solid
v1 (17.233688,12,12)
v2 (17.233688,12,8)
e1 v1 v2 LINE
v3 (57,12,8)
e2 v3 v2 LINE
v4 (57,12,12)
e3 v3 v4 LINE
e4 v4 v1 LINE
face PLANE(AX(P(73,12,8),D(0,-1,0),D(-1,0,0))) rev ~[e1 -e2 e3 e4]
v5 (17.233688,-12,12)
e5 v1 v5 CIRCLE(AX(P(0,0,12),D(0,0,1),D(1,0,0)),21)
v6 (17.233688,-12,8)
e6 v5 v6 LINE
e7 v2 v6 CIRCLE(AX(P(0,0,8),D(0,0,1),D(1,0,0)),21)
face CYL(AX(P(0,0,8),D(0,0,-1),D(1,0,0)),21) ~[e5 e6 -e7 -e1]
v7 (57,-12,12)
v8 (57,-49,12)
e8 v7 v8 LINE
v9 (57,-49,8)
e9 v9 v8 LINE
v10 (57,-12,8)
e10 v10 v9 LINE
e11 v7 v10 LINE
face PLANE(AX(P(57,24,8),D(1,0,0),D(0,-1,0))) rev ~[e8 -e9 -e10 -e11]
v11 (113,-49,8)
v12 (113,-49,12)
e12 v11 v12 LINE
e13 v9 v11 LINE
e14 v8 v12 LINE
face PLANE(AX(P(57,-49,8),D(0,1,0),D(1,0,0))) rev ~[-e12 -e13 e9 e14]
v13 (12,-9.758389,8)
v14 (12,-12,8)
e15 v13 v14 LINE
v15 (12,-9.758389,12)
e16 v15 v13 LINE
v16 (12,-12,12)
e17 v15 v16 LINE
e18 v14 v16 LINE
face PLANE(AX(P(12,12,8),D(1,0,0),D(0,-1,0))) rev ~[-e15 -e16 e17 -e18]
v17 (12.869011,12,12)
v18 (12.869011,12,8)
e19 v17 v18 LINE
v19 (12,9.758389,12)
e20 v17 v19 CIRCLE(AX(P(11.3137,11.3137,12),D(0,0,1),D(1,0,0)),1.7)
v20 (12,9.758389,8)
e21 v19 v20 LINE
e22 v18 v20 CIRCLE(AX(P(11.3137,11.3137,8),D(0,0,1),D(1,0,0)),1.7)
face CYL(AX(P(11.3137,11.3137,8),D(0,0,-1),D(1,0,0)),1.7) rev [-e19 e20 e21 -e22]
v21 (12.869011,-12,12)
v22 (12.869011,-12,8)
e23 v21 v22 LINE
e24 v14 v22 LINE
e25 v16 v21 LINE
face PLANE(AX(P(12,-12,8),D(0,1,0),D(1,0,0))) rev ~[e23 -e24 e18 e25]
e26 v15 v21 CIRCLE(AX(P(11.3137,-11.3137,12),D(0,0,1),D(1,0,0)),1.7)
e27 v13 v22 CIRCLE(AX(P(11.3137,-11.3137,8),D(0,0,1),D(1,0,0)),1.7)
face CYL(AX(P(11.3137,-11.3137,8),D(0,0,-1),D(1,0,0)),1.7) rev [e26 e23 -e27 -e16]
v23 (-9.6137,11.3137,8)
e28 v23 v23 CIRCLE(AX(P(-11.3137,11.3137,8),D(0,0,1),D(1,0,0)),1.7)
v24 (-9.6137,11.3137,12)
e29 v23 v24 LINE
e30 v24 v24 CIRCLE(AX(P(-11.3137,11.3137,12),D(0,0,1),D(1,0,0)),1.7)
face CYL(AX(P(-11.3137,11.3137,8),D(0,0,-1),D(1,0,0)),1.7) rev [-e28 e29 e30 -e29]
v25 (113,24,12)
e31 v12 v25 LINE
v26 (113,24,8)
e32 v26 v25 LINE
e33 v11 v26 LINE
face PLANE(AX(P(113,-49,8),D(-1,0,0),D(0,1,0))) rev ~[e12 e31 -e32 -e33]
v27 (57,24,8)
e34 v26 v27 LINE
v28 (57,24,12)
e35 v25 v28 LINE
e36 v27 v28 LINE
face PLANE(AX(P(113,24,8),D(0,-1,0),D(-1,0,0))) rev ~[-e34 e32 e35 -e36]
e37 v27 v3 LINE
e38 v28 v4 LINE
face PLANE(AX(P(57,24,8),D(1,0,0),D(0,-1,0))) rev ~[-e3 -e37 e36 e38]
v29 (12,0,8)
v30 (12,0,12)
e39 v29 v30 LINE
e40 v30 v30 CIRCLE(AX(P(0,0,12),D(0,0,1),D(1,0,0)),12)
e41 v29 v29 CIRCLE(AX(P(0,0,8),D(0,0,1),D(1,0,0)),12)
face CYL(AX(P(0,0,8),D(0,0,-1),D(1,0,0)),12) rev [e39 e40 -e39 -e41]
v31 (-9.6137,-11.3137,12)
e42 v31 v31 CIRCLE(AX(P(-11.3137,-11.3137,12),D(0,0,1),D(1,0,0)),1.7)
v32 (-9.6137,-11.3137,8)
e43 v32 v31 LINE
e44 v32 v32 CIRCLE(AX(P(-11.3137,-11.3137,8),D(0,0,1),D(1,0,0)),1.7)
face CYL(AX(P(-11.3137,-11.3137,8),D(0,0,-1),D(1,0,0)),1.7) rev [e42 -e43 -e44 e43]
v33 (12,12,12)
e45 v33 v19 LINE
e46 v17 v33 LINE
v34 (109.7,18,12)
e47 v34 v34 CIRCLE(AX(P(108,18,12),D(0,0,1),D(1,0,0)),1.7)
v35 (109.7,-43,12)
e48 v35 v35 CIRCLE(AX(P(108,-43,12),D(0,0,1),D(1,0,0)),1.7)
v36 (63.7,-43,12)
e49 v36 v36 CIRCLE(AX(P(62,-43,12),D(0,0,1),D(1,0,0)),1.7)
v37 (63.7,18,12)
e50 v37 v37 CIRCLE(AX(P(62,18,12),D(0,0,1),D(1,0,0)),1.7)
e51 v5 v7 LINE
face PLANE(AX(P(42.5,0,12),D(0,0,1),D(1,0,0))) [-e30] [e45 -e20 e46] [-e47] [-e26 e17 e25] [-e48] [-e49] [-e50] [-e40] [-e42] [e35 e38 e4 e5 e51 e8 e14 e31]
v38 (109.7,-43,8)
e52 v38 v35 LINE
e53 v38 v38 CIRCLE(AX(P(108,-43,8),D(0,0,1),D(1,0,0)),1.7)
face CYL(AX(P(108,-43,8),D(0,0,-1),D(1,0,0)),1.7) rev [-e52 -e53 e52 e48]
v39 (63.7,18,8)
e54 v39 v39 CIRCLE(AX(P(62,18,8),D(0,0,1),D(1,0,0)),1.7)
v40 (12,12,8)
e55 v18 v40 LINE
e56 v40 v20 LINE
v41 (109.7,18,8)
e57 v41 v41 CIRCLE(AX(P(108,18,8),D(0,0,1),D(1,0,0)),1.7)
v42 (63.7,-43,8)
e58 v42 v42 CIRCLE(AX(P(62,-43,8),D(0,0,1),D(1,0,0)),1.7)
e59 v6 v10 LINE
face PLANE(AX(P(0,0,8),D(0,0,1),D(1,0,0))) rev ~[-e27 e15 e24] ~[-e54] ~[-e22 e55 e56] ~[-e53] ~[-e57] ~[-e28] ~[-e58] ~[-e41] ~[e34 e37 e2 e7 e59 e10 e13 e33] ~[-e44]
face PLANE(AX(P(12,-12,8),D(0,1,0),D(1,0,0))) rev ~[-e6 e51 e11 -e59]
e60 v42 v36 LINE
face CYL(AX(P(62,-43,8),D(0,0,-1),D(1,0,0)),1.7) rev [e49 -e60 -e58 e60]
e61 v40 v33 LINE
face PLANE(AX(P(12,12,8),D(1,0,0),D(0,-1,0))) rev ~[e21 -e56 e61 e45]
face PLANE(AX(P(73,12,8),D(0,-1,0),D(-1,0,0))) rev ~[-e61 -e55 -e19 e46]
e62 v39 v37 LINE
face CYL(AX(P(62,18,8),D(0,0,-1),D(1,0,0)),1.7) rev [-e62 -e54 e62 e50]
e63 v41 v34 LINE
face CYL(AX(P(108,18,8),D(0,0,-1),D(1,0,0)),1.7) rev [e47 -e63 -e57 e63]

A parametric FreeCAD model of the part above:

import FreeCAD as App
import Part
import Sketcher
Q = App.Units.Quantity

doc = App.newDocument("Part")
params = doc.addObject("Spreadsheet::Sheet", "Params")
for row, (alias, value) in enumerate([
    ("sketch1_diameter", "42 mm"),
    ("sketch1_diameter2", "24 mm"),
    ("sketch1_diameter3", "3.4 mm"),
    ("pad1_length", "4 mm"),
    ("sketch2_width", "61 mm"),
    ("sketch2_height", "24 mm"),
    ("pad2_length", "4 mm"),
    ("sketch3_diameter", "3.4 mm"),
    ("sketch3_width", "56 mm"),
    ("sketch3_height", "73 mm"),
    ("pad3_length", "4 mm"),
], start=1):
    params.set(f"A{row}", alias)
    params.set(f"B{row}", "=" + value)
    params.setAlias(f"B{row}", alias)

body = doc.addObject("PartDesign::Body", "Body")

sketch1 = body.newObject("Sketcher::SketchObject", "Sketch")
sketch1.AttachmentSupport = (doc.getObject("XY_Plane"), [""])
sketch1.MapMode = "FlatFace"
sketch1.AttachmentOffset = App.Placement(App.Vector(0, 0, 8), App.Rotation())
sketch1.addGeometry(Part.Circle(App.Vector(0, 0, 0), App.Vector(0, 0, 1), 21), False)
sketch1.addGeometry(Part.Circle(App.Vector(-11.3, -11.3, 0), App.Vector(0, 0, 1), 1.7), False)
sketch1.addGeometry(Part.Circle(App.Vector(11.3, -11.3, 0), App.Vector(0, 0, 1), 1.7), False)
sketch1.addGeometry(Part.Circle(App.Vector(-11.3, 11.3, 0), App.Vector(0, 0, 1), 1.7), False)
sketch1.addGeometry(Part.Circle(App.Vector(0, 0, 0), App.Vector(0, 0, 1), 12), False)
sketch1.addGeometry(Part.Circle(App.Vector(11.3, 11.3, 0), App.Vector(0, 0, 1), 1.7), False)
sketch1.addConstraint(Sketcher.Constraint("Coincident", 0, 3, -1, 1))
sketch1.addConstraint(Sketcher.Constraint("Coincident", 4, 3, -1, 1))
sketch1.addConstraint(Sketcher.Constraint("Equal", 1, 2))
sketch1.addConstraint(Sketcher.Constraint("Equal", 2, 3))
sketch1.addConstraint(Sketcher.Constraint("Equal", 3, 5))
sketch1.addConstraint(Sketcher.Constraint("Symmetric", 2, 3, 3, 3, -1, 1))
sketch1.addConstraint(Sketcher.Constraint("Symmetric", 1, 3, 5, 3, -1, 1))
sketch1.addConstraint(Sketcher.Constraint("Symmetric", 1, 3, 2, 3, -2))
sketch1.addConstraint(Sketcher.Constraint("Diameter", 0, Q("42 mm")))
sketch1.addConstraint(Sketcher.Constraint("Diameter", 4, Q("24 mm")))
sketch1.addConstraint(Sketcher.Constraint("Diameter", 1, Q("3.4 mm")))
sketch1.addConstraint(Sketcher.Constraint("DistanceX", 1, 3, -1, 1, Q("11.3137 mm")))
sketch1.addConstraint(Sketcher.Constraint("DistanceY", 1, 3, -1, 1, Q("11.3137 mm")))
sketch1.setExpression("Constraints[8]", "Params.sketch1_diameter")
sketch1.setExpression("Constraints[9]", "Params.sketch1_diameter2")
sketch1.setExpression("Constraints[10]", "Params.sketch1_diameter3")
pad1 = body.newObject("PartDesign::Pad", "Pad")
pad1.Profile = sketch1
pad1.setExpression("Length", "Params.pad1_length")

sketch2 = body.newObject("Sketcher::SketchObject", "Sketch001")
sketch2.AttachmentSupport = (doc.getObject("XY_Plane"), [""])
sketch2.MapMode = "FlatFace"
sketch2.AttachmentOffset = App.Placement(App.Vector(0, 0, 8), App.Rotation())
sketch2.addGeometry(Part.LineSegment(App.Vector(12, 12, 0), App.Vector(12, -12, 0)), False)
sketch2.addGeometry(Part.LineSegment(App.Vector(12, -12, 0), App.Vector(73, -12, 0)), False)
sketch2.addGeometry(Part.LineSegment(App.Vector(73, -12, 0), App.Vector(73, 12, 0)), False)
sketch2.addGeometry(Part.LineSegment(App.Vector(73, 12, 0), App.Vector(12, 12, 0)), False)
sketch2.addConstraint(Sketcher.Constraint("Coincident", 0, 2, 1, 1))
sketch2.addConstraint(Sketcher.Constraint("Coincident", 1, 2, 2, 1))
sketch2.addConstraint(Sketcher.Constraint("Coincident", 2, 2, 3, 1))
sketch2.addConstraint(Sketcher.Constraint("Coincident", 3, 2, 0, 1))
sketch2.addConstraint(Sketcher.Constraint("Vertical", 0))
sketch2.addConstraint(Sketcher.Constraint("Horizontal", 1))
sketch2.addConstraint(Sketcher.Constraint("Vertical", 2))
sketch2.addConstraint(Sketcher.Constraint("Horizontal", 3))
sketch2.addConstraint(Sketcher.Constraint("DistanceX", 1, 1, 1, 2, Q("61 mm")))
sketch2.addConstraint(Sketcher.Constraint("DistanceY", 0, 2, 0, 1, Q("24 mm")))
sketch2.addConstraint(Sketcher.Constraint("DistanceX", -1, 1, 0, 2, Q("12 mm")))
sketch2.addConstraint(Sketcher.Constraint("DistanceY", 0, 2, -1, 1, Q("12 mm")))
sketch2.setExpression("Constraints[8]", "Params.sketch2_width")
sketch2.setExpression("Constraints[9]", "Params.sketch2_height")
pad2 = body.newObject("PartDesign::Pad", "Pad001")
pad2.Profile = sketch2
pad2.setExpression("Length", "Params.pad2_length")

sketch3 = body.newObject("Sketcher::SketchObject", "Sketch002")
sketch3.AttachmentSupport = (doc.getObject("XY_Plane"), [""])
sketch3.MapMode = "FlatFace"
sketch3.AttachmentOffset = App.Placement(App.Vector(0, 0, 8), App.Rotation())
sketch3.addGeometry(Part.LineSegment(App.Vector(57, 24, 0), App.Vector(57, -49, 0)), False)
sketch3.addGeometry(Part.LineSegment(App.Vector(57, -49, 0), App.Vector(113, -49, 0)), False)
sketch3.addGeometry(Part.LineSegment(App.Vector(113, -49, 0), App.Vector(113, 24, 0)), False)
sketch3.addGeometry(Part.LineSegment(App.Vector(113, 24, 0), App.Vector(57, 24, 0)), False)
sketch3.addGeometry(Part.Circle(App.Vector(62, -43, 0), App.Vector(0, 0, 1), 1.7), False)
sketch3.addGeometry(Part.Circle(App.Vector(108, -43, 0), App.Vector(0, 0, 1), 1.7), False)
sketch3.addGeometry(Part.Circle(App.Vector(62, 18, 0), App.Vector(0, 0, 1), 1.7), False)
sketch3.addGeometry(Part.Circle(App.Vector(108, 18, 0), App.Vector(0, 0, 1), 1.7), False)
sketch3.addConstraint(Sketcher.Constraint("Coincident", 0, 2, 1, 1))
sketch3.addConstraint(Sketcher.Constraint("Coincident", 1, 2, 2, 1))
sketch3.addConstraint(Sketcher.Constraint("Coincident", 2, 2, 3, 1))
sketch3.addConstraint(Sketcher.Constraint("Coincident", 3, 2, 0, 1))
sketch3.addConstraint(Sketcher.Constraint("Vertical", 0))
sketch3.addConstraint(Sketcher.Constraint("Horizontal", 1))
sketch3.addConstraint(Sketcher.Constraint("Vertical", 2))
sketch3.addConstraint(Sketcher.Constraint("Horizontal", 3))
sketch3.addConstraint(Sketcher.Constraint("Equal", 4, 5))
sketch3.addConstraint(Sketcher.Constraint("Equal", 5, 6))
sketch3.addConstraint(Sketcher.Constraint("Equal", 6, 7))
sketch3.addConstraint(Sketcher.Constraint("Horizontal", 4, 3, 5, 3))
sketch3.addConstraint(Sketcher.Constraint("Horizontal", 6, 3, 7, 3))
sketch3.addConstraint(Sketcher.Constraint("Vertical", 4, 3, 6, 3))
sketch3.addConstraint(Sketcher.Constraint("Vertical", 5, 3, 7, 3))
sketch3.addConstraint(Sketcher.Constraint("Diameter", 4, Q("3.4 mm")))
sketch3.addConstraint(Sketcher.Constraint("DistanceX", 1, 1, 1, 2, Q("56 mm")))
sketch3.addConstraint(Sketcher.Constraint("DistanceY", 0, 2, 0, 1, Q("73 mm")))
sketch3.addConstraint(Sketcher.Constraint("DistanceX", -1, 1, 4, 3, Q("62 mm")))
sketch3.addConstraint(Sketcher.Constraint("DistanceY", 4, 3, -1, 1, Q("43 mm")))
sketch3.addConstraint(Sketcher.Constraint("DistanceX", -1, 1, 5, 3, Q("108 mm")))
sketch3.addConstraint(Sketcher.Constraint("DistanceY", -1, 1, 6, 3, Q("18 mm")))
sketch3.addConstraint(Sketcher.Constraint("DistanceX", -1, 1, 0, 2, Q("57 mm")))
sketch3.addConstraint(Sketcher.Constraint("DistanceY", 0, 2, -1, 1, Q("49 mm")))
sketch3.setExpression("Constraints[15]", "Params.sketch3_diameter")
sketch3.setExpression("Constraints[16]", "Params.sketch3_width")
sketch3.setExpression("Constraints[17]", "Params.sketch3_height")
pad3 = body.newObject("PartDesign::Pad", "Pad002")
pad3.Profile = sketch3
pad3.setExpression("Length", "Params.pad3_length")

doc.recompute()
